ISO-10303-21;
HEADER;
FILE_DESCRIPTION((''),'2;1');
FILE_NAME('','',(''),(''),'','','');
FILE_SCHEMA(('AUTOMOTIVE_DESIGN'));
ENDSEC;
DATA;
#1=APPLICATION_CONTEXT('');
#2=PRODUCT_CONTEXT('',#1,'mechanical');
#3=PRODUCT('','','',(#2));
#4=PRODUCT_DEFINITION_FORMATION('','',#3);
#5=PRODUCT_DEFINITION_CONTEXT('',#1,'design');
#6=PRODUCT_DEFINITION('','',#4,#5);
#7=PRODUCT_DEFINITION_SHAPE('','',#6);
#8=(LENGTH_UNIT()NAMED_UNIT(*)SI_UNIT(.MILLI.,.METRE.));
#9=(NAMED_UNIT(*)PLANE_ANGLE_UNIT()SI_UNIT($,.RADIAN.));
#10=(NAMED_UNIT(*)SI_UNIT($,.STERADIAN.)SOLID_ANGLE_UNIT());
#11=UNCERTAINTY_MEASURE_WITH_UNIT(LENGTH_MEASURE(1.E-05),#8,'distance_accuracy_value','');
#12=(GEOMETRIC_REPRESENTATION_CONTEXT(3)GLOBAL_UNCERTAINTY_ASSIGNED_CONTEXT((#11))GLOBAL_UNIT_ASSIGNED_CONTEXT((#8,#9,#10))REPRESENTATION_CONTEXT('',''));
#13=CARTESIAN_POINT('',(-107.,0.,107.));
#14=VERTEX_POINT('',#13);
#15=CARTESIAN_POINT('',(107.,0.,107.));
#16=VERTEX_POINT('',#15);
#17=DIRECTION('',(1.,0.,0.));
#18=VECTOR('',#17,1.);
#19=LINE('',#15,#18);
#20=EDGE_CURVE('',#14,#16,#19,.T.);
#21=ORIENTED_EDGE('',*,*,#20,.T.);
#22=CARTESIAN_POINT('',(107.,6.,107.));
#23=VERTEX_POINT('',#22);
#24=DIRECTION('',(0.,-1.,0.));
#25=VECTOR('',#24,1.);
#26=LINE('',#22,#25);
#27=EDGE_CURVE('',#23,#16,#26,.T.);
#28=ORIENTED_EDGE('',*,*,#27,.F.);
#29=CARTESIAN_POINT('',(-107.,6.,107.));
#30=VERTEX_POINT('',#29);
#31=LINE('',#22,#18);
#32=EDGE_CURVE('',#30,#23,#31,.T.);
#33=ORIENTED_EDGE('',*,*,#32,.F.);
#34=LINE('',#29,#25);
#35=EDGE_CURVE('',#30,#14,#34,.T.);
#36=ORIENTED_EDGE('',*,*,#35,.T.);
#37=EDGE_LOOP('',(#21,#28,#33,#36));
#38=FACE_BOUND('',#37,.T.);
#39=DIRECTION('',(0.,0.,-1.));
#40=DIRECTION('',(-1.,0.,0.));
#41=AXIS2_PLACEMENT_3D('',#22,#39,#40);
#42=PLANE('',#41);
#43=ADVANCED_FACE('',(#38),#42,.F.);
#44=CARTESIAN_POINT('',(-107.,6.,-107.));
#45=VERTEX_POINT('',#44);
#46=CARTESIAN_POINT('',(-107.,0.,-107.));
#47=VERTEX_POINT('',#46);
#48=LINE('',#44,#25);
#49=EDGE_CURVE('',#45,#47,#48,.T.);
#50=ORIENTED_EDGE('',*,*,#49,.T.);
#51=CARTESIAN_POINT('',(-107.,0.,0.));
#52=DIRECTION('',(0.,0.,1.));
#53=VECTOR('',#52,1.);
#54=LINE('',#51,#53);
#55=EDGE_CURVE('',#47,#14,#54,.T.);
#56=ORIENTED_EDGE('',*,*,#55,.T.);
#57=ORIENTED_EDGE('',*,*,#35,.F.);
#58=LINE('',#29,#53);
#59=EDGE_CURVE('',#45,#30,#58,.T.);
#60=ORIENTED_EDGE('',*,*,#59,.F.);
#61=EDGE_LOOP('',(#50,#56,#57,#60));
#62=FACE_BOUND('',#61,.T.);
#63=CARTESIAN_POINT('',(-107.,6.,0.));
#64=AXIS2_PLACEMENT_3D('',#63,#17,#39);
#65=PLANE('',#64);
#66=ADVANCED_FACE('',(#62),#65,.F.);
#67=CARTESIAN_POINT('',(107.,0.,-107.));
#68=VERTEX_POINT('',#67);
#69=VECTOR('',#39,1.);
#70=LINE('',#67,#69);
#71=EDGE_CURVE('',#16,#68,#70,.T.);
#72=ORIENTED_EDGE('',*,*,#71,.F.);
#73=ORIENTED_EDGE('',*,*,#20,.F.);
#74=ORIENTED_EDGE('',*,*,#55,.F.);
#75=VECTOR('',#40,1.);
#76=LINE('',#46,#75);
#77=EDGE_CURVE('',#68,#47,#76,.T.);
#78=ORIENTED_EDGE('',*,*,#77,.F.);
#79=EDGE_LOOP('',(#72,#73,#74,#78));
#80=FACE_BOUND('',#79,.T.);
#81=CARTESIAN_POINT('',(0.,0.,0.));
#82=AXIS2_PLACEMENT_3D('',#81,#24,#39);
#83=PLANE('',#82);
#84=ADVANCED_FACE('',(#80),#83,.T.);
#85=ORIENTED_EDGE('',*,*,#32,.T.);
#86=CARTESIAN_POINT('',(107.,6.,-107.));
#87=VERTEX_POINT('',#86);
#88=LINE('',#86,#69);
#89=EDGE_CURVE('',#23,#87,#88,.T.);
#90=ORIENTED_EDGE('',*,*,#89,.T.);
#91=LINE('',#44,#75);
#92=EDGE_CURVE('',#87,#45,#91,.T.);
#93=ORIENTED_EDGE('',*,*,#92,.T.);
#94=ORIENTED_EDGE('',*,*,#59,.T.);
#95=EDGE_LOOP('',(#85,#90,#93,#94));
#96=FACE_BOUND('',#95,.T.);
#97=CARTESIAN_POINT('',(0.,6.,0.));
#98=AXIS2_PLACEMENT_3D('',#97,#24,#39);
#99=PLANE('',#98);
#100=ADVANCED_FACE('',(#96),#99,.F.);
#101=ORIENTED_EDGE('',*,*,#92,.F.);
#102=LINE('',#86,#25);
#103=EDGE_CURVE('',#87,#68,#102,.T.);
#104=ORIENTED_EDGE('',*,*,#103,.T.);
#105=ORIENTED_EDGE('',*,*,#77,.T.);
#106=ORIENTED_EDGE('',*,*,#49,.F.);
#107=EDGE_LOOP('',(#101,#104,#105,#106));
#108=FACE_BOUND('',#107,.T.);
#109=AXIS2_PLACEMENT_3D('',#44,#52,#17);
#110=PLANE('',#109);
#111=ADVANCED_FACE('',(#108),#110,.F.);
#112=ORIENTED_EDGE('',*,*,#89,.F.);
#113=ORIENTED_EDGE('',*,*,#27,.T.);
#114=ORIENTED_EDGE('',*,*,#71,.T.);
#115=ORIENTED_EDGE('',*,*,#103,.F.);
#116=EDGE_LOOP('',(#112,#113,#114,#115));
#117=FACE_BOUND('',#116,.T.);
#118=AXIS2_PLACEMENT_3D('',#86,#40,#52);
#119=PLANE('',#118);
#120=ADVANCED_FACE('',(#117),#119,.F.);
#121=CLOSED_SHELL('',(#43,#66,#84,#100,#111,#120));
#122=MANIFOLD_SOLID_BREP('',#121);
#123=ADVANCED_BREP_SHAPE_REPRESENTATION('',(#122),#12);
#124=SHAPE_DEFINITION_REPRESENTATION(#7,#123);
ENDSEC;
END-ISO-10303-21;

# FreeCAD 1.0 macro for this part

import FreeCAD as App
import Part
import Sketcher
from FreeCAD import Vector


def add_polygon(sketch, points):
    """Adds a closed chain of lines whose ends are joined by coincident constraints."""
    first, n = sketch.GeometryCount, len(points)
    for a, b in zip(points, points[1:] + points[:1]):
        sketch.addGeometry(Part.LineSegment(App.Vector(*a, 0), App.Vector(*b, 0)), False)
    for i in range(n):
        sketch.addConstraint(Sketcher.Constraint("Coincident", first + i, 2, first + (i + 1) % n, 1))

doc = App.newDocument("Part")
body = doc.addObject("PartDesign::Body", "Body")

sketch1 = body.newObject("Sketcher::SketchObject", "Sketch")
sketch1.AttachmentSupport = (doc.getObject("XZ_Plane"), [""])
sketch1.MapMode = "FlatFace"
add_polygon(sketch1, [(-107, -107), (-107, 107), (107, 107), (107, -107)])
sketch1.addConstraint([
    Sketcher.Constraint("Vertical", 0),
    Sketcher.Constraint("Horizontal", 1),
    Sketcher.Constraint("Vertical", 2),
    Sketcher.Constraint("Horizontal", 3),
    Sketcher.Constraint("Symmetric", 0, 2, 2, 2, -1, 1),
    Sketcher.Constraint("Equal", 3, 0),
    Sketcher.Constraint("DistanceX", 1, 1, 1, 2, 214.0),
])
pad1 = body.newObject("PartDesign::Pad", "Pad")
pad1.Profile = sketch1
pad1.Length = 6
pad1.Reversed = True

doc.recompute()
